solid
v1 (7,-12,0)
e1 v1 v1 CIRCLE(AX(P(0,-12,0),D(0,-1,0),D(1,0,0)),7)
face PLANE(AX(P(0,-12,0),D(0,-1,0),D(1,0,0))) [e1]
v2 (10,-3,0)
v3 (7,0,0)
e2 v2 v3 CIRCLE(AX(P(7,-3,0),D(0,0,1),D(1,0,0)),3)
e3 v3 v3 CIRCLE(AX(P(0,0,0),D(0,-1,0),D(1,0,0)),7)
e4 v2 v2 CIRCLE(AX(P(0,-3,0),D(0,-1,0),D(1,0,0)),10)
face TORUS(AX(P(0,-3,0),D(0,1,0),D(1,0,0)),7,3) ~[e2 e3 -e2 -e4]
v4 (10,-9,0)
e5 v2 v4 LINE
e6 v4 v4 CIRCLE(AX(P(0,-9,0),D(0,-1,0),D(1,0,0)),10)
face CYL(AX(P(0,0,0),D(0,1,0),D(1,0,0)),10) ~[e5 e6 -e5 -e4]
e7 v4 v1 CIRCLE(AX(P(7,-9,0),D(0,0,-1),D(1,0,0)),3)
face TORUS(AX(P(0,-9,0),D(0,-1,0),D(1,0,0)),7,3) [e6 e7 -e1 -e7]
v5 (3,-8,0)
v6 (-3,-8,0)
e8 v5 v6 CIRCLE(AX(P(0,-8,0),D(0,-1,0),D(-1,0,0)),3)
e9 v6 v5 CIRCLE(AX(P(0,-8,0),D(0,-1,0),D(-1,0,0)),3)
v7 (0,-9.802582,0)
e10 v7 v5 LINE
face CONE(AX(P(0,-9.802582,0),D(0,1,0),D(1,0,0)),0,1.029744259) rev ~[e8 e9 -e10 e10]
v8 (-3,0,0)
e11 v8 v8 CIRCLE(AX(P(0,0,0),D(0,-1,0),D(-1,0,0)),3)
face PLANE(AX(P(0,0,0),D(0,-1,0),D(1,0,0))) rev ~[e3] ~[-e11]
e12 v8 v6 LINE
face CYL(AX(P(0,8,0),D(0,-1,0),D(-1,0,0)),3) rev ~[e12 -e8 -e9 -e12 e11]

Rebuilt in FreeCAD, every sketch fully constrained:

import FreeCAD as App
import Part
import Sketcher

V = App.Vector


def edges_at(feature, points):
    """Names of the edges that pass closest to the given points."""
    edges = feature.Shape.Edges
    near = lambda p: min(range(len(edges)), key=lambda i: edges[i].distToShape(Part.Vertex(*p))[0])
    return sorted({f"Edge{near(p) + 1}" for p in points})

doc = App.newDocument("Part")
params = doc.addObject("Spreadsheet::Sheet", "Params")
for row, (alias, value) in enumerate([
    ("sketch1_diameter", "20 mm"),
    ("pad1_length", "12 mm"),
    ("fillet_radius", "3 mm"),
    ("sketch2_diameter", "6 mm"),
    ("hole_diameter", "6 mm"),
    ("hole_depth", "8 mm"),
], start=1):
    params.set(f"A{row}", alias)
    params.set(f"B{row}", "=" + value)
    params.setAlias(f"B{row}", alias)

body = doc.addObject("PartDesign::Body", "Body")

# Sketch on XZ plane
sketch1 = body.newObject("Sketcher::SketchObject", "Sketch")
sketch1.AttachmentSupport = (doc.getObject("XZ_Plane"), [""])
sketch1.MapMode = "FlatFace"
sketch1.addGeometry(Part.Circle(V(0, 0, 0), V(0, 0, 1), 10), False)
sketch1.addConstraint([
    Sketcher.Constraint("Coincident", 0, 3, -1, 1),
    Sketcher.Constraint("Diameter", 0, 20.0),
])
sketch1.setExpression("Constraints[1]", "Params.sketch1_diameter")
pad1 = body.newObject("PartDesign::Pad", "Pad")
pad1.Profile = sketch1
pad1.setExpression("Length", "Params.pad1_length")
doc.recompute()

fillet = body.newObject("PartDesign::Fillet", "Fillet")
fillet.Base = (pad1, edges_at(pad1, [(-10, 0, 0), (-10, -12, 0)]))
fillet.setExpression("Radius", "Params.fillet_radius")

# Sketch on XZ plane
sketch2 = body.newObject("Sketcher::SketchObject", "Sketch001")
sketch2.AttachmentSupport = (doc.getObject("XZ_Plane"), [""])
sketch2.MapMode = "FlatFace"
sketch2.addGeometry(Part.Circle(V(0, 0, 0), V(0, 0, 1), 3), False)
sketch2.addConstraint([
    Sketcher.Constraint("Coincident", 0, 3, -1, 1),
    Sketcher.Constraint("Diameter", 0, 6.0),
])
sketch2.setExpression("Constraints[1]", "Params.sketch2_diameter")
doc.recompute()
hole = body.newObject("PartDesign::Hole", "Hole")
hole.Profile = sketch2
hole.ThreadType = "None"
hole.setExpression("Diameter", "Params.hole_diameter")
hole.DepthType = "Dimension"
hole.setExpression("Depth", "Params.hole_depth")
hole.DrillPoint = "Angled"
hole.DrillPointAngle = 118
hole.Reversed = True

doc.recompute()
